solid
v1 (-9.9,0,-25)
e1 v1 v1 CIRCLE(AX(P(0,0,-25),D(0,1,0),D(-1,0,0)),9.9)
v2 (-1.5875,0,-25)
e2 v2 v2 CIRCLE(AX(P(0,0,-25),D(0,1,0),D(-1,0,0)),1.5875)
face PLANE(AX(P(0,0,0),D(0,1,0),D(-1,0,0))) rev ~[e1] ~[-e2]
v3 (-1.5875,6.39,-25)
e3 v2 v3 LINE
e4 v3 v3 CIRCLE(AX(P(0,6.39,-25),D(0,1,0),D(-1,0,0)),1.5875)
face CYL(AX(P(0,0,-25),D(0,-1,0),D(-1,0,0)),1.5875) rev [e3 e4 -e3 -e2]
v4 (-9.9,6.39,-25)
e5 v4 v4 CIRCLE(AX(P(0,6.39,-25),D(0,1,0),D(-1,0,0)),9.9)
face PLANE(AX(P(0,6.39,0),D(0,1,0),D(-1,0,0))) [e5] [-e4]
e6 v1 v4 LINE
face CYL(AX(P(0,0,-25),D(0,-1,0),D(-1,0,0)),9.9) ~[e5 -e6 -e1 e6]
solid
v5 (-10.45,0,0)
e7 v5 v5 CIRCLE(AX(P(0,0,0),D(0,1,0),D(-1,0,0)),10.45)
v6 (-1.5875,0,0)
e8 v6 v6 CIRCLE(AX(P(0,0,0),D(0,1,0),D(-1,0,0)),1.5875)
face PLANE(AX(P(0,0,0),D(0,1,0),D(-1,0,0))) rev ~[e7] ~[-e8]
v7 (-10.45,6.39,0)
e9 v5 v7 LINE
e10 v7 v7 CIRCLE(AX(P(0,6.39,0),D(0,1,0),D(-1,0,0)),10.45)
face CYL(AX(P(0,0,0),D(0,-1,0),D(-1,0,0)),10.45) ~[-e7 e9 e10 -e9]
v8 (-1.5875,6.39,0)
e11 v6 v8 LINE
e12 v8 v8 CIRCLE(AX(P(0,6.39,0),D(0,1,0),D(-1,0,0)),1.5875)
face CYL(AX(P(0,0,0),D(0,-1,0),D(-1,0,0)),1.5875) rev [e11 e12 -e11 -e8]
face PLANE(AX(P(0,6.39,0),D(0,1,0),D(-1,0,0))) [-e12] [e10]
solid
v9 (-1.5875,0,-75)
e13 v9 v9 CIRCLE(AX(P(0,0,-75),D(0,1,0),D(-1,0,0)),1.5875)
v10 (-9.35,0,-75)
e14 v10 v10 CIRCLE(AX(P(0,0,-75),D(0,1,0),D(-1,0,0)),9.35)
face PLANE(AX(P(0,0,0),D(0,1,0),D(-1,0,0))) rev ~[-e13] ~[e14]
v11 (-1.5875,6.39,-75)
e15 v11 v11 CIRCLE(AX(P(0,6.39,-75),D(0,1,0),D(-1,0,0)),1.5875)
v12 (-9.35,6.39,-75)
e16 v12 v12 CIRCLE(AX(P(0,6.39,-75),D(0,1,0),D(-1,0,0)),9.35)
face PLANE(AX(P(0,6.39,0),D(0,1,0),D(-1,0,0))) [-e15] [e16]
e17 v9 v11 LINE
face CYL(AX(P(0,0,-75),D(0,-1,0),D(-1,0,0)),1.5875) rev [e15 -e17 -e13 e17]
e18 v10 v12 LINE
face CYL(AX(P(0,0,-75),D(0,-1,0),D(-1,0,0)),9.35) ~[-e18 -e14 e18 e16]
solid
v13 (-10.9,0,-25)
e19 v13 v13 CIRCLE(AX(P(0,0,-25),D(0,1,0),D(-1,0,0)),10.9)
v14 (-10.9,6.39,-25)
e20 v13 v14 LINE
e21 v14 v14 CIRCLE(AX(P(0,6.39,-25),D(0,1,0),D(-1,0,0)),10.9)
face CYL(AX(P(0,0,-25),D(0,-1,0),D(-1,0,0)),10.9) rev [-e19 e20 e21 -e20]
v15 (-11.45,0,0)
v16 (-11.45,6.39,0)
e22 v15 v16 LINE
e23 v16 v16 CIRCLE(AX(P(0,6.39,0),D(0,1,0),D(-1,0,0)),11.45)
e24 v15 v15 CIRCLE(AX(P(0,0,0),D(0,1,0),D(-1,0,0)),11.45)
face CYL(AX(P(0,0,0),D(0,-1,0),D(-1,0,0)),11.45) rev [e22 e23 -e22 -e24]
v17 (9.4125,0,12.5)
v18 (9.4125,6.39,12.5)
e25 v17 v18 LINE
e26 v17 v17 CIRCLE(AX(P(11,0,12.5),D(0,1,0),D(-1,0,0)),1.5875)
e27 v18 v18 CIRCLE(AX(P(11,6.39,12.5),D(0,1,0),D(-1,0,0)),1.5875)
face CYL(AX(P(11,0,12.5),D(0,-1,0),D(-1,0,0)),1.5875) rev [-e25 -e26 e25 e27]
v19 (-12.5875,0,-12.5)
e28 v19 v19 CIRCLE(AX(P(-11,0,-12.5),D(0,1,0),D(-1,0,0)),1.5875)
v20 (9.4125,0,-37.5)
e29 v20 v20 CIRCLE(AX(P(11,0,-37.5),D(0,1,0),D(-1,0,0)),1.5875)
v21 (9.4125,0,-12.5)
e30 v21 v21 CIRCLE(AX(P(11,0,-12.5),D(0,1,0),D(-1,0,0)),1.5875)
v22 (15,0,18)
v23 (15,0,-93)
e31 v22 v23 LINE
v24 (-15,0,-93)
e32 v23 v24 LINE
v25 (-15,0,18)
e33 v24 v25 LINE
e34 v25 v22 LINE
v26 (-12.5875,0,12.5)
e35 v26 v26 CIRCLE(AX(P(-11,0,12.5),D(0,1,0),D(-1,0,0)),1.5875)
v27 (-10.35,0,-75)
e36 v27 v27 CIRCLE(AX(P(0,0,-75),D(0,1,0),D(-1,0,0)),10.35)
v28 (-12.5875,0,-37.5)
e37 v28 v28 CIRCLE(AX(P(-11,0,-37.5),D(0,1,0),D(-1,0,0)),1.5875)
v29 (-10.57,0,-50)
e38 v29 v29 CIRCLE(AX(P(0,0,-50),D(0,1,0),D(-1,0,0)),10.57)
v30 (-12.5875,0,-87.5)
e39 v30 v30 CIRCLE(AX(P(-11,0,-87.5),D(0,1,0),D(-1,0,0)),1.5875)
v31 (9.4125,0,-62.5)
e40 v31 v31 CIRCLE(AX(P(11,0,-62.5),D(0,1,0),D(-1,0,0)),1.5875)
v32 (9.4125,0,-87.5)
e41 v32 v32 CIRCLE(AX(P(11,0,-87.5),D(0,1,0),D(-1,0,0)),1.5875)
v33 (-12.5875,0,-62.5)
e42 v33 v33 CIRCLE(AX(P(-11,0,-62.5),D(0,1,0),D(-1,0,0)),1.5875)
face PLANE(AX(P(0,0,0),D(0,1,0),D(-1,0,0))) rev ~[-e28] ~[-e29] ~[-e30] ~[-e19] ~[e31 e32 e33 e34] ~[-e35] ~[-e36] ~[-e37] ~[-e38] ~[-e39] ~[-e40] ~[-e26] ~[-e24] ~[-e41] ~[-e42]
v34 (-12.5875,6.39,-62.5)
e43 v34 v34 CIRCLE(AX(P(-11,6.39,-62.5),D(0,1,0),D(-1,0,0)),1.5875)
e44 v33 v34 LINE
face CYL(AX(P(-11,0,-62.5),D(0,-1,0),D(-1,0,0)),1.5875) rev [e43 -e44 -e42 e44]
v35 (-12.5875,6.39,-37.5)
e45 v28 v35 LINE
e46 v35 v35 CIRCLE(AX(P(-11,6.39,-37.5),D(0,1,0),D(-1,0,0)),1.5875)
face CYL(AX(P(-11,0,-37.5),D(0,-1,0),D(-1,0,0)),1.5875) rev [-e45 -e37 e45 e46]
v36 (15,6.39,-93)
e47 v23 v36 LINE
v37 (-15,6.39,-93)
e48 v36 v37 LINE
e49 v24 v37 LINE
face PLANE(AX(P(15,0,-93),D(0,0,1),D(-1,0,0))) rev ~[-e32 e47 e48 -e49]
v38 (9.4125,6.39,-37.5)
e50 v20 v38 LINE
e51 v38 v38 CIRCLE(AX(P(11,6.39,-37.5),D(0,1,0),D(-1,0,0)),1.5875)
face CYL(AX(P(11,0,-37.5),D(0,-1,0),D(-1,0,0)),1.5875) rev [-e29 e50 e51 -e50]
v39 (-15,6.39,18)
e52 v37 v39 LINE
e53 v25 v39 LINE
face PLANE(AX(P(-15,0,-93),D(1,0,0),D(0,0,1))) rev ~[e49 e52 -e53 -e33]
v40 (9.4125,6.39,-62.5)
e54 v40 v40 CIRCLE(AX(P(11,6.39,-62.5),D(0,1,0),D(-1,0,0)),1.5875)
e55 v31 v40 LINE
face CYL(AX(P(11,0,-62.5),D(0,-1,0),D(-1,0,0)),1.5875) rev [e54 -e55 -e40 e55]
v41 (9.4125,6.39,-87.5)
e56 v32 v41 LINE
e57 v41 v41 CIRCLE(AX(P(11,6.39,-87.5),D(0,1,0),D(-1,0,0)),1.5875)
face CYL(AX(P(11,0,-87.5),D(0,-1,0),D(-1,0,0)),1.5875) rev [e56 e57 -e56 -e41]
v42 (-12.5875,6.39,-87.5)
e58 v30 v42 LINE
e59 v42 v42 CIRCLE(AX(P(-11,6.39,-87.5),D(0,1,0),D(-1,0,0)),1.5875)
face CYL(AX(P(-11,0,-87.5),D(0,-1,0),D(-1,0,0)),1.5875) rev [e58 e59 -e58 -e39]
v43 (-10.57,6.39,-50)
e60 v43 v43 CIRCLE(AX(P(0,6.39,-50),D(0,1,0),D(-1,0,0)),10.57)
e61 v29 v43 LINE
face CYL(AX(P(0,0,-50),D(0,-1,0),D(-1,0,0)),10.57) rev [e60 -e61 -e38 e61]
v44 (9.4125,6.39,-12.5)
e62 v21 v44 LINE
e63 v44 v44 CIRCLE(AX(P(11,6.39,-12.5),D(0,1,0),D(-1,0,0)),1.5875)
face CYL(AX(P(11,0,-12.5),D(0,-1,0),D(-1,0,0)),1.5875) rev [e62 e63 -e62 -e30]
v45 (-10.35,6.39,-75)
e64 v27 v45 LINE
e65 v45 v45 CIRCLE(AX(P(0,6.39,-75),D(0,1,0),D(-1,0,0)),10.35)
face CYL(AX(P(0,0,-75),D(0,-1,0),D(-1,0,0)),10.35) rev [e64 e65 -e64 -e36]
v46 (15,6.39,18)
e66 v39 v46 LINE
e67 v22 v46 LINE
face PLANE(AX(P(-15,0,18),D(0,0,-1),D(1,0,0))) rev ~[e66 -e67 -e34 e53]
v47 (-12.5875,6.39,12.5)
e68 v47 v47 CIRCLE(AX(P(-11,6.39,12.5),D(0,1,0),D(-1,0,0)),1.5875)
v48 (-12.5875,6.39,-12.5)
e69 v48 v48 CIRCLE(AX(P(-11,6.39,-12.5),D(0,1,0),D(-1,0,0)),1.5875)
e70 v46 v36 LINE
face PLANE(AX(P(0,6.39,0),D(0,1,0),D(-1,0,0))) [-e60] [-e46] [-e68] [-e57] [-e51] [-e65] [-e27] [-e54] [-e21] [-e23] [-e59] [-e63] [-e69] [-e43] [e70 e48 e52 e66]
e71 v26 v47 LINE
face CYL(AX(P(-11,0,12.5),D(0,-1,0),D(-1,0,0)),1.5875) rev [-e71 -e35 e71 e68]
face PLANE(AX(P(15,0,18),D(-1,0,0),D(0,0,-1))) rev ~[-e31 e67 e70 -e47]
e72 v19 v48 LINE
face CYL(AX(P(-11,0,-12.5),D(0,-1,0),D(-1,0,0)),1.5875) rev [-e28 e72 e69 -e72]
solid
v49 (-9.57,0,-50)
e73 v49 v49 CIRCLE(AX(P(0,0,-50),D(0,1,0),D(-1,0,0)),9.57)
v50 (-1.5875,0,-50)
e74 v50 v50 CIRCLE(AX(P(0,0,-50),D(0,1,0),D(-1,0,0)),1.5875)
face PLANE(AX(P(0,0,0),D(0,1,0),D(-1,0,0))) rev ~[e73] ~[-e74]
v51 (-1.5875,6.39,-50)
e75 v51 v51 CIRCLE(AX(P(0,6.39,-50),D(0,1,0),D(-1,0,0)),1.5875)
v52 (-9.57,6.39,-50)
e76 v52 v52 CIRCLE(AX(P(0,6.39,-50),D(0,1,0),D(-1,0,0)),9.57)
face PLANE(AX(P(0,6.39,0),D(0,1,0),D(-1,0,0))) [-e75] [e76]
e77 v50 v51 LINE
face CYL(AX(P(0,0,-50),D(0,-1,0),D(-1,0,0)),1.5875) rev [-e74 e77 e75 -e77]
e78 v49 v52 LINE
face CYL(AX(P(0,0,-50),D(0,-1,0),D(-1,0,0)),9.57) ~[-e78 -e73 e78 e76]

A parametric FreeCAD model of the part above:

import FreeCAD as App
import Part
import Sketcher
from FreeCAD import Vector
Q = App.Units.Quantity

doc = App.newDocument("Part")
params = doc.addObject("Spreadsheet::Sheet", "Params")
for row, (alias, value) in enumerate([
    ("sketch1_diameter", "20.9 mm"),
    ("sketch1_diameter2", "19.8 mm"),
    ("sketch1_diameter3", "18.7 mm"),
    ("sketch1_diameter4", "19.14 mm"),
    ("sketch1_diameter5", "20.7 mm"),
    ("pad1_length", "6.39 mm"),
], start=1):
    params.set(f"A{row}", alias)
    params.set(f"B{row}", "=" + value)
    params.setAlias(f"B{row}", alias)

body = doc.addObject("PartDesign::Body", "Body")
body.AllowCompound = True

# Sketch on XZ plane
sketch1 = body.newObject("Sketcher::SketchObject", "Sketch")
sketch1.AttachmentSupport = (doc.getObject("XZ_Plane"), [""])
sketch1.MapMode = "FlatFace"
sketch1.addGeometry([
    Part.Circle(Vector(0, 0, 0), Vector(0, 0, 1), 10.4),  # 0
    Part.Circle(Vector(0, 0, 0), Vector(0, 0, 1), 1.6),  # 1
    Part.Circle(Vector(0, -25, 0), Vector(0, 0, 1), 9.9),  # 2
    Part.Circle(Vector(0, -25, 0), Vector(0, 0, 1), 1.6),  # 3
    Part.Circle(Vector(0, -50, 0), Vector(0, 0, 1), 9.6),  # 4
    Part.Circle(Vector(0, -50, 0), Vector(0, 0, 1), 1.6),  # 5
    Part.Circle(Vector(0, -75, 0), Vector(0, 0, 1), 9.3),  # 6
    Part.Circle(Vector(0, -75, 0), Vector(0, 0, 1), 1.6),  # 7
    Part.LineSegment(Vector(-15, -93, 0), Vector(-15, 18, 0)),  # 8
    Part.LineSegment(Vector(-15, 18, 0), Vector(15, 18, 0)),  # 9
    Part.LineSegment(Vector(15, 18, 0), Vector(15, -93, 0)),  # 10
    Part.LineSegment(Vector(15, -93, 0), Vector(-15, -93, 0)),  # 11
    Part.Circle(Vector(11, -87.5, 0), Vector(0, 0, 1), 1.6),  # 12
    Part.Circle(Vector(11, -62.5, 0), Vector(0, 0, 1), 1.6),  # 13
    Part.Circle(Vector(0, -75, 0), Vector(0, 0, 1), 10.3),  # 14
    Part.Circle(Vector(-11, -87.5, 0), Vector(0, 0, 1), 1.6),  # 15
    Part.Circle(Vector(0, -50, 0), Vector(0, 0, 1), 10.6),  # 16
    Part.Circle(Vector(-11, -62.5, 0), Vector(0, 0, 1), 1.6),  # 17
    Part.Circle(Vector(11, -37.5, 0), Vector(0, 0, 1), 1.6),  # 18
    Part.Circle(Vector(11, -12.5, 0), Vector(0, 0, 1), 1.6),  # 19
    Part.Circle(Vector(11, 12.5, 0), Vector(0, 0, 1), 1.6),  # 20
    Part.Circle(Vector(0, -25, 0), Vector(0, 0, 1), 10.9),  # 21
    Part.Circle(Vector(-11, -37.5, 0), Vector(0, 0, 1), 1.6),  # 22
    Part.Circle(Vector(-11, -12.5, 0), Vector(0, 0, 1), 1.6),  # 23
    Part.Circle(Vector(0, 0, 0), Vector(0, 0, 1), 11.4),  # 24
    Part.Circle(Vector(-11, 12.5, 0), Vector(0, 0, 1), 1.6),  # 25
], False)
sketch1.addConstraint([
    Sketcher.Constraint("Coincident", 8, 2, 9, 1),
    Sketcher.Constraint("Coincident", 9, 2, 10, 1),
    Sketcher.Constraint("Coincident", 10, 2, 11, 1),
    Sketcher.Constraint("Coincident", 11, 2, 8, 1),
    Sketcher.Constraint("Vertical", 8),
    Sketcher.Constraint("Horizontal", 9),
    Sketcher.Constraint("Vertical", 10),
    Sketcher.Constraint("Horizontal", 11),
    Sketcher.Constraint("Coincident", 0, 3, -1, 1),
    Sketcher.Constraint("Coincident", 1, 3, -1, 1),
    Sketcher.Constraint("Coincident", 24, 3, -1, 1),
    Sketcher.Constraint("Coincident", 3, 3, 2, 3),
    Sketcher.Constraint("Coincident", 5, 3, 4, 3),
    Sketcher.Constraint("Coincident", 7, 3, 6, 3),
    Sketcher.Constraint("Coincident", 14, 3, 6, 3),
    Sketcher.Constraint("Coincident", 16, 3, 4, 3),
    Sketcher.Constraint("Coincident", 21, 3, 2, 3),
    Sketcher.Constraint("Equal", 1, 3),
    Sketcher.Constraint("Equal", 3, 5),
    Sketcher.Constraint("Equal", 5, 7),
    Sketcher.Constraint("Equal", 7, 12),
    Sketcher.Constraint("Equal", 12, 13),
    Sketcher.Constraint("Equal", 13, 15),
    Sketcher.Constraint("Equal", 15, 17),
    Sketcher.Constraint("Equal", 17, 18),
    Sketcher.Constraint("Equal", 18, 19),
    Sketcher.Constraint("Equal", 19, 20),
    Sketcher.Constraint("Equal", 20, 22),
    Sketcher.Constraint("Equal", 22, 23),
    Sketcher.Constraint("Equal", 23, 25),
    Sketcher.Constraint("Symmetric", 20, 3, 23, 3, -1, 1),
    Sketcher.Constraint("Symmetric", 19, 3, 25, 3, -1, 1),
    Sketcher.Constraint("Symmetric", 12, 3, 15, 3, -2),
    Sketcher.Constraint("Symmetric", 13, 3, 17, 3, -2),
    Sketcher.Constraint("Symmetric", 18, 3, 22, 3, -2),
    Sketcher.Constraint("Symmetric", 19, 3, 23, 3, -2),
    Sketcher.Constraint("PointOnObject", 2, 3, -2),
    Sketcher.Constraint("PointOnObject", 4, 3, -2),
    Sketcher.Constraint("PointOnObject", 6, 3, -2),
    Sketcher.Constraint("Vertical", 12, 3, 13, 3),
    Sketcher.Constraint("Vertical", 13, 3, 18, 3),
    Sketcher.Constraint("Vertical", 18, 3, 19, 3),
    Sketcher.Constraint("Diameter", 0, Q("20.9 mm")),
    Sketcher.Constraint("Diameter", 2, Q("19.8 mm")),
    Sketcher.Constraint("Diameter", 6, Q("18.7 mm")),
    Sketcher.Constraint("Diameter", 4, Q("19.14 mm")),
    Sketcher.Constraint("Diameter", 1, Q("3.175 mm")),
    Sketcher.Constraint("DistanceY", 2, 3, -1, 1, Q("25 mm")),
    Sketcher.Constraint("DistanceX", 8, 2, -1, 1, Q("15 mm")),
    Sketcher.Constraint("DistanceY", -1, 1, 8, 2, Q("18 mm")),
    Sketcher.Constraint("DistanceX", -1, 1, 9, 2, Q("15 mm")),
    Sketcher.Constraint("DistanceY", 4, 3, 2, 3, Q("25 mm")),
    Sketcher.Constraint("DistanceY", 6, 3, 4, 3, Q("25 mm")),
    Sketcher.Constraint("DistanceY", 12, 3, 13, 3, Q("25 mm")),
    Sketcher.Constraint("DistanceY", 18, 3, 19, 3, Q("25 mm")),
    Sketcher.Constraint("DistanceY", 19, 3, 20, 3, Q("25 mm")),
    Sketcher.Constraint("DistanceX", 8, 2, 25, 3, Q("4 mm")),
    Sketcher.Constraint("DistanceY", 10, 2, 6, 3, Q("18 mm")),
    Sketcher.Constraint("Diameter", 14, Q("20.7 mm")),
    Sketcher.Constraint("Diameter", 21, Q("21.8 mm")),
    Sketcher.Constraint("Diameter", 24, Q("22.9 mm")),
    Sketcher.Constraint("Diameter", 16, Q("21.14 mm")),
    Sketcher.Constraint("DistanceY", 12, 3, -1, 1, Q("87.5 mm")),
])
sketch1.setExpression("Constraints[42]", "Params.sketch1_diameter")
sketch1.setExpression("Constraints[43]", "Params.sketch1_diameter2")
sketch1.setExpression("Constraints[44]", "Params.sketch1_diameter3")
sketch1.setExpression("Constraints[45]", "Params.sketch1_diameter4")
sketch1.setExpression("Constraints[58]", "Params.sketch1_diameter5")
pad1 = body.newObject("PartDesign::Pad", "Pad")
pad1.Profile = sketch1
pad1.setExpression("Length", "Params.pad1_length")
pad1.Reversed = True

doc.recompute()
